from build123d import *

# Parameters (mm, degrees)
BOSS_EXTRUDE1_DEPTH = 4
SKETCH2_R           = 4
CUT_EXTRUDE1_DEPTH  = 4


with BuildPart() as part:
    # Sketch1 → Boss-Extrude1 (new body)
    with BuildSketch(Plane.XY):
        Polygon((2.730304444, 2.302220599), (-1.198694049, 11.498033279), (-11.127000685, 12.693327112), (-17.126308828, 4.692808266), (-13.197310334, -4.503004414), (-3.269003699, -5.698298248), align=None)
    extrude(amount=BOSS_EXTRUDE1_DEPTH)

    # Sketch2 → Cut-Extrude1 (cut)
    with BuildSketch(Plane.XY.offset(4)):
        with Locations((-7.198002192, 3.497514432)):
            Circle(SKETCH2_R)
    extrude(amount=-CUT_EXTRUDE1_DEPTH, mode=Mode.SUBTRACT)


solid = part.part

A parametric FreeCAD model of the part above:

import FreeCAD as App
import Part
import Sketcher

V = App.Vector


def add_polygon(sketch, points):
    """Adds a closed chain of lines whose ends are joined by coincident constraints."""
    first, n = sketch.GeometryCount, len(points)
    for a, b in zip(points, points[1:] + points[:1]):
        sketch.addGeometry(Part.LineSegment(App.Vector(*a, 0), App.Vector(*b, 0)), False)
    for i in range(n):
        sketch.addConstraint(Sketcher.Constraint("Coincident", first + i, 2, first + (i + 1) % n, 1))

doc = App.newDocument("Part")
params = doc.addObject("Spreadsheet::Sheet", "Params")
for row, (alias, value) in enumerate([
    ("sketch1_length", "10 mm"),
    ("pad1_length", "4 mm"),
    ("sketch2_diameter", "8 mm"),
    ("pocket1_length", "4 mm"),
], start=1):
    params.set(f"A{row}", alias)
    params.set(f"B{row}", "=" + value)
    params.setAlias(f"B{row}", alias)

body = doc.addObject("PartDesign::Body", "Body")

# Sketch on XY plane
sketch1 = body.newObject("Sketcher::SketchObject", "Sketch")
sketch1.AttachmentSupport = (doc.getObject("XY_Plane"), [""])
sketch1.MapMode = "FlatFace"
add_polygon(sketch1, [(3, 2), (-1, 11), (-11, 13), (-17, 5), (-13, -5), (-3, -6)])  # lines 0-5
sketch1.addConstraint([
    Sketcher.Constraint("Parallel", 0, 3),
    Sketcher.Constraint("Parallel", 1, 4),
    Sketcher.Constraint("Parallel", 2, 5),
    Sketcher.Constraint("Equal", 0, 1),
    Sketcher.Constraint("Equal", 1, 2),
    Sketcher.Constraint("Equal", 2, 3),
    Sketcher.Constraint("Distance", 0, 10.0),
    Sketcher.Constraint("DistanceX", 1, 2, -1, 1, 11.127001),
    Sketcher.Constraint("DistanceX", 2, 2, 3, 2, 3.928998),
    Sketcher.Constraint("DistanceY", 4, 2, -1, 1, 5.698298),
    Sketcher.Constraint("DistanceX", 2, 2, -1, 1, 17.126309),
    Sketcher.Constraint("DistanceY", -1, 1, 2, 2, 4.692808),
])
sketch1.setExpression("Constraints[12]", "Params.sketch1_length")
pad1 = body.newObject("PartDesign::Pad", "Pad")
pad1.Profile = sketch1
pad1.setExpression("Length", "Params.pad1_length")

# Sketch on XY plane
sketch2 = body.newObject("Sketcher::SketchObject", "Sketch001")
sketch2.AttachmentSupport = (doc.getObject("XY_Plane"), [""])
sketch2.MapMode = "FlatFace"
sketch2.AttachmentOffset = App.Placement(V(0, 0, 4), App.Rotation())
sketch2.addGeometry(Part.Circle(V(-7.2, 3.5, 0), V(0, 0, 1), 4), False)
sketch2.addConstraint([
    Sketcher.Constraint("Diameter", 0, 8.0),
    Sketcher.Constraint("DistanceX", 0, 3, -1, 1, 7.198002),
    Sketcher.Constraint("DistanceY", -1, 1, 0, 3, 3.497514),
])
sketch2.setExpression("Constraints[0]", "Params.sketch2_diameter")
pocket1 = body.newObject("PartDesign::Pocket", "Pocket")
pocket1.Profile = sketch2
pocket1.setExpression("Length", "Params.pocket1_length")

doc.recompute()
